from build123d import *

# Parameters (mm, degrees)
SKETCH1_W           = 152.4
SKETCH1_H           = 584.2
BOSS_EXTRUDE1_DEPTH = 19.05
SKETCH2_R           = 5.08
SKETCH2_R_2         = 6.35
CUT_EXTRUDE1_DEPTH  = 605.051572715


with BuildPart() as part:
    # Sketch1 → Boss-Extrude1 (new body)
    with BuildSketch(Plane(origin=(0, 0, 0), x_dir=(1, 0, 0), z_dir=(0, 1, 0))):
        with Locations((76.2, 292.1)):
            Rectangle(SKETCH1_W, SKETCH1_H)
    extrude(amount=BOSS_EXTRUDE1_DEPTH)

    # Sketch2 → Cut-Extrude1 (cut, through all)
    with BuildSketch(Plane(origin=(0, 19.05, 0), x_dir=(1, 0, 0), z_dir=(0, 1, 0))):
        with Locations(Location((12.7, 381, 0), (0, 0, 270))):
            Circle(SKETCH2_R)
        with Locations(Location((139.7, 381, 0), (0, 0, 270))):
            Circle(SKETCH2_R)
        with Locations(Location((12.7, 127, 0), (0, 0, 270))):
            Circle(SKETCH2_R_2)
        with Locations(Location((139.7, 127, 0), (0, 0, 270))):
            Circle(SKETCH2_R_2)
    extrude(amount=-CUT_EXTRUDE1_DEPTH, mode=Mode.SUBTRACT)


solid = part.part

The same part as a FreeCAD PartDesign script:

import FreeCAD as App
import Part
import Sketcher
Q = App.Units.Quantity


def add_polygon(sketch, points):
    """Adds a closed chain of lines whose ends are joined by coincident constraints."""
    first, n = sketch.GeometryCount, len(points)
    for a, b in zip(points, points[1:] + points[:1]):
        sketch.addGeometry(Part.LineSegment(App.Vector(*a, 0), App.Vector(*b, 0)), False)
    for i in range(n):
        sketch.addConstraint(Sketcher.Constraint("Coincident", first + i, 2, first + (i + 1) % n, 1))

doc = App.newDocument("Part")
body = doc.addObject("PartDesign::Body", "Body")

sketch1 = doc.addObject("Sketcher::SketchObject", "Sketch")
body.addObject(sketch1)
sketch1.AttachmentSupport = (doc.XZ_Plane, [""])
sketch1.MapMode = "FlatFace"
add_polygon(sketch1, [(0, -584), (0, 0), (152, 0), (152, -584)])
sketch1.addConstraint(Sketcher.Constraint("Vertical", 0))
sketch1.addConstraint(Sketcher.Constraint("Horizontal", 1))
sketch1.addConstraint(Sketcher.Constraint("Vertical", 2))
sketch1.addConstraint(Sketcher.Constraint("Horizontal", 3))
sketch1.addConstraint(Sketcher.Constraint("Coincident", 0, 2, -1, 1))
sketch1.addConstraint(Sketcher.Constraint("DistanceX", 1, 1, 1, 2, Q("6 in")))
sketch1.addConstraint(Sketcher.Constraint("DistanceY", 0, 1, 0, 2, Q("23 in")))
pad1 = doc.addObject("PartDesign::Pad", "Pad")
body.addObject(pad1)
pad1.Profile = sketch1
pad1.Length = Q("0.75 in")
pad1.Reversed = True

sketch2 = doc.addObject("Sketcher::SketchObject", "Sketch001")
body.addObject(sketch2)
sketch2.AttachmentSupport = (doc.XZ_Plane, [""])
sketch2.MapMode = "FlatFace"
sketch2.AttachmentOffset = App.Placement(App.Vector(0, 0, -0.75 * 25.4), App.Rotation())
sketch2.addGeometry(Part.Circle(App.Vector(13, -381, 0), App.Vector(0, 0, 1), 5), False)
sketch2.addGeometry(Part.Circle(App.Vector(140, -381, 0), App.Vector(0, 0, 1), 5), False)
sketch2.addGeometry(Part.Circle(App.Vector(13, -127, 0), App.Vector(0, 0, 1), 6), False)
sketch2.addGeometry(Part.Circle(App.Vector(140, -127, 0), App.Vector(0, 0, 1), 6), False)
sketch2.addConstraint(Sketcher.Constraint("Equal", 0, 1))
sketch2.addConstraint(Sketcher.Constraint("Equal", 2, 3))
sketch2.addConstraint(Sketcher.Constraint("Horizontal", 0, 3, 1, 3))
sketch2.addConstraint(Sketcher.Constraint("Horizontal", 2, 3, 3, 3))
sketch2.addConstraint(Sketcher.Constraint("Vertical", 0, 3, 2, 3))
sketch2.addConstraint(Sketcher.Constraint("Vertical", 1, 3, 3, 3))
sketch2.addConstraint(Sketcher.Constraint("Diameter", 0, Q("0.4 in")))
sketch2.addConstraint(Sketcher.Constraint("Diameter", 2, Q("0.5 in")))
sketch2.addConstraint(Sketcher.Constraint("DistanceY", 0, 3, -1, 1, Q("15 in")))
sketch2.addConstraint(Sketcher.Constraint("DistanceY", 2, 3, -1, 1, Q("5 in")))
sketch2.addConstraint(Sketcher.Constraint("DistanceX", 0, 3, 1, 3, Q("5 in")))
sketch2.addConstraint(Sketcher.Constraint("DistanceX", -1, 1, 0, 3, Q("0.5 in")))
pocket1 = doc.addObject("PartDesign::Pocket", "Pocket")
body.addObject(pocket1)
pocket1.Profile = sketch2
pocket1.Type = "ThroughAll"
pocket1.Reversed = True

doc.recompute()
